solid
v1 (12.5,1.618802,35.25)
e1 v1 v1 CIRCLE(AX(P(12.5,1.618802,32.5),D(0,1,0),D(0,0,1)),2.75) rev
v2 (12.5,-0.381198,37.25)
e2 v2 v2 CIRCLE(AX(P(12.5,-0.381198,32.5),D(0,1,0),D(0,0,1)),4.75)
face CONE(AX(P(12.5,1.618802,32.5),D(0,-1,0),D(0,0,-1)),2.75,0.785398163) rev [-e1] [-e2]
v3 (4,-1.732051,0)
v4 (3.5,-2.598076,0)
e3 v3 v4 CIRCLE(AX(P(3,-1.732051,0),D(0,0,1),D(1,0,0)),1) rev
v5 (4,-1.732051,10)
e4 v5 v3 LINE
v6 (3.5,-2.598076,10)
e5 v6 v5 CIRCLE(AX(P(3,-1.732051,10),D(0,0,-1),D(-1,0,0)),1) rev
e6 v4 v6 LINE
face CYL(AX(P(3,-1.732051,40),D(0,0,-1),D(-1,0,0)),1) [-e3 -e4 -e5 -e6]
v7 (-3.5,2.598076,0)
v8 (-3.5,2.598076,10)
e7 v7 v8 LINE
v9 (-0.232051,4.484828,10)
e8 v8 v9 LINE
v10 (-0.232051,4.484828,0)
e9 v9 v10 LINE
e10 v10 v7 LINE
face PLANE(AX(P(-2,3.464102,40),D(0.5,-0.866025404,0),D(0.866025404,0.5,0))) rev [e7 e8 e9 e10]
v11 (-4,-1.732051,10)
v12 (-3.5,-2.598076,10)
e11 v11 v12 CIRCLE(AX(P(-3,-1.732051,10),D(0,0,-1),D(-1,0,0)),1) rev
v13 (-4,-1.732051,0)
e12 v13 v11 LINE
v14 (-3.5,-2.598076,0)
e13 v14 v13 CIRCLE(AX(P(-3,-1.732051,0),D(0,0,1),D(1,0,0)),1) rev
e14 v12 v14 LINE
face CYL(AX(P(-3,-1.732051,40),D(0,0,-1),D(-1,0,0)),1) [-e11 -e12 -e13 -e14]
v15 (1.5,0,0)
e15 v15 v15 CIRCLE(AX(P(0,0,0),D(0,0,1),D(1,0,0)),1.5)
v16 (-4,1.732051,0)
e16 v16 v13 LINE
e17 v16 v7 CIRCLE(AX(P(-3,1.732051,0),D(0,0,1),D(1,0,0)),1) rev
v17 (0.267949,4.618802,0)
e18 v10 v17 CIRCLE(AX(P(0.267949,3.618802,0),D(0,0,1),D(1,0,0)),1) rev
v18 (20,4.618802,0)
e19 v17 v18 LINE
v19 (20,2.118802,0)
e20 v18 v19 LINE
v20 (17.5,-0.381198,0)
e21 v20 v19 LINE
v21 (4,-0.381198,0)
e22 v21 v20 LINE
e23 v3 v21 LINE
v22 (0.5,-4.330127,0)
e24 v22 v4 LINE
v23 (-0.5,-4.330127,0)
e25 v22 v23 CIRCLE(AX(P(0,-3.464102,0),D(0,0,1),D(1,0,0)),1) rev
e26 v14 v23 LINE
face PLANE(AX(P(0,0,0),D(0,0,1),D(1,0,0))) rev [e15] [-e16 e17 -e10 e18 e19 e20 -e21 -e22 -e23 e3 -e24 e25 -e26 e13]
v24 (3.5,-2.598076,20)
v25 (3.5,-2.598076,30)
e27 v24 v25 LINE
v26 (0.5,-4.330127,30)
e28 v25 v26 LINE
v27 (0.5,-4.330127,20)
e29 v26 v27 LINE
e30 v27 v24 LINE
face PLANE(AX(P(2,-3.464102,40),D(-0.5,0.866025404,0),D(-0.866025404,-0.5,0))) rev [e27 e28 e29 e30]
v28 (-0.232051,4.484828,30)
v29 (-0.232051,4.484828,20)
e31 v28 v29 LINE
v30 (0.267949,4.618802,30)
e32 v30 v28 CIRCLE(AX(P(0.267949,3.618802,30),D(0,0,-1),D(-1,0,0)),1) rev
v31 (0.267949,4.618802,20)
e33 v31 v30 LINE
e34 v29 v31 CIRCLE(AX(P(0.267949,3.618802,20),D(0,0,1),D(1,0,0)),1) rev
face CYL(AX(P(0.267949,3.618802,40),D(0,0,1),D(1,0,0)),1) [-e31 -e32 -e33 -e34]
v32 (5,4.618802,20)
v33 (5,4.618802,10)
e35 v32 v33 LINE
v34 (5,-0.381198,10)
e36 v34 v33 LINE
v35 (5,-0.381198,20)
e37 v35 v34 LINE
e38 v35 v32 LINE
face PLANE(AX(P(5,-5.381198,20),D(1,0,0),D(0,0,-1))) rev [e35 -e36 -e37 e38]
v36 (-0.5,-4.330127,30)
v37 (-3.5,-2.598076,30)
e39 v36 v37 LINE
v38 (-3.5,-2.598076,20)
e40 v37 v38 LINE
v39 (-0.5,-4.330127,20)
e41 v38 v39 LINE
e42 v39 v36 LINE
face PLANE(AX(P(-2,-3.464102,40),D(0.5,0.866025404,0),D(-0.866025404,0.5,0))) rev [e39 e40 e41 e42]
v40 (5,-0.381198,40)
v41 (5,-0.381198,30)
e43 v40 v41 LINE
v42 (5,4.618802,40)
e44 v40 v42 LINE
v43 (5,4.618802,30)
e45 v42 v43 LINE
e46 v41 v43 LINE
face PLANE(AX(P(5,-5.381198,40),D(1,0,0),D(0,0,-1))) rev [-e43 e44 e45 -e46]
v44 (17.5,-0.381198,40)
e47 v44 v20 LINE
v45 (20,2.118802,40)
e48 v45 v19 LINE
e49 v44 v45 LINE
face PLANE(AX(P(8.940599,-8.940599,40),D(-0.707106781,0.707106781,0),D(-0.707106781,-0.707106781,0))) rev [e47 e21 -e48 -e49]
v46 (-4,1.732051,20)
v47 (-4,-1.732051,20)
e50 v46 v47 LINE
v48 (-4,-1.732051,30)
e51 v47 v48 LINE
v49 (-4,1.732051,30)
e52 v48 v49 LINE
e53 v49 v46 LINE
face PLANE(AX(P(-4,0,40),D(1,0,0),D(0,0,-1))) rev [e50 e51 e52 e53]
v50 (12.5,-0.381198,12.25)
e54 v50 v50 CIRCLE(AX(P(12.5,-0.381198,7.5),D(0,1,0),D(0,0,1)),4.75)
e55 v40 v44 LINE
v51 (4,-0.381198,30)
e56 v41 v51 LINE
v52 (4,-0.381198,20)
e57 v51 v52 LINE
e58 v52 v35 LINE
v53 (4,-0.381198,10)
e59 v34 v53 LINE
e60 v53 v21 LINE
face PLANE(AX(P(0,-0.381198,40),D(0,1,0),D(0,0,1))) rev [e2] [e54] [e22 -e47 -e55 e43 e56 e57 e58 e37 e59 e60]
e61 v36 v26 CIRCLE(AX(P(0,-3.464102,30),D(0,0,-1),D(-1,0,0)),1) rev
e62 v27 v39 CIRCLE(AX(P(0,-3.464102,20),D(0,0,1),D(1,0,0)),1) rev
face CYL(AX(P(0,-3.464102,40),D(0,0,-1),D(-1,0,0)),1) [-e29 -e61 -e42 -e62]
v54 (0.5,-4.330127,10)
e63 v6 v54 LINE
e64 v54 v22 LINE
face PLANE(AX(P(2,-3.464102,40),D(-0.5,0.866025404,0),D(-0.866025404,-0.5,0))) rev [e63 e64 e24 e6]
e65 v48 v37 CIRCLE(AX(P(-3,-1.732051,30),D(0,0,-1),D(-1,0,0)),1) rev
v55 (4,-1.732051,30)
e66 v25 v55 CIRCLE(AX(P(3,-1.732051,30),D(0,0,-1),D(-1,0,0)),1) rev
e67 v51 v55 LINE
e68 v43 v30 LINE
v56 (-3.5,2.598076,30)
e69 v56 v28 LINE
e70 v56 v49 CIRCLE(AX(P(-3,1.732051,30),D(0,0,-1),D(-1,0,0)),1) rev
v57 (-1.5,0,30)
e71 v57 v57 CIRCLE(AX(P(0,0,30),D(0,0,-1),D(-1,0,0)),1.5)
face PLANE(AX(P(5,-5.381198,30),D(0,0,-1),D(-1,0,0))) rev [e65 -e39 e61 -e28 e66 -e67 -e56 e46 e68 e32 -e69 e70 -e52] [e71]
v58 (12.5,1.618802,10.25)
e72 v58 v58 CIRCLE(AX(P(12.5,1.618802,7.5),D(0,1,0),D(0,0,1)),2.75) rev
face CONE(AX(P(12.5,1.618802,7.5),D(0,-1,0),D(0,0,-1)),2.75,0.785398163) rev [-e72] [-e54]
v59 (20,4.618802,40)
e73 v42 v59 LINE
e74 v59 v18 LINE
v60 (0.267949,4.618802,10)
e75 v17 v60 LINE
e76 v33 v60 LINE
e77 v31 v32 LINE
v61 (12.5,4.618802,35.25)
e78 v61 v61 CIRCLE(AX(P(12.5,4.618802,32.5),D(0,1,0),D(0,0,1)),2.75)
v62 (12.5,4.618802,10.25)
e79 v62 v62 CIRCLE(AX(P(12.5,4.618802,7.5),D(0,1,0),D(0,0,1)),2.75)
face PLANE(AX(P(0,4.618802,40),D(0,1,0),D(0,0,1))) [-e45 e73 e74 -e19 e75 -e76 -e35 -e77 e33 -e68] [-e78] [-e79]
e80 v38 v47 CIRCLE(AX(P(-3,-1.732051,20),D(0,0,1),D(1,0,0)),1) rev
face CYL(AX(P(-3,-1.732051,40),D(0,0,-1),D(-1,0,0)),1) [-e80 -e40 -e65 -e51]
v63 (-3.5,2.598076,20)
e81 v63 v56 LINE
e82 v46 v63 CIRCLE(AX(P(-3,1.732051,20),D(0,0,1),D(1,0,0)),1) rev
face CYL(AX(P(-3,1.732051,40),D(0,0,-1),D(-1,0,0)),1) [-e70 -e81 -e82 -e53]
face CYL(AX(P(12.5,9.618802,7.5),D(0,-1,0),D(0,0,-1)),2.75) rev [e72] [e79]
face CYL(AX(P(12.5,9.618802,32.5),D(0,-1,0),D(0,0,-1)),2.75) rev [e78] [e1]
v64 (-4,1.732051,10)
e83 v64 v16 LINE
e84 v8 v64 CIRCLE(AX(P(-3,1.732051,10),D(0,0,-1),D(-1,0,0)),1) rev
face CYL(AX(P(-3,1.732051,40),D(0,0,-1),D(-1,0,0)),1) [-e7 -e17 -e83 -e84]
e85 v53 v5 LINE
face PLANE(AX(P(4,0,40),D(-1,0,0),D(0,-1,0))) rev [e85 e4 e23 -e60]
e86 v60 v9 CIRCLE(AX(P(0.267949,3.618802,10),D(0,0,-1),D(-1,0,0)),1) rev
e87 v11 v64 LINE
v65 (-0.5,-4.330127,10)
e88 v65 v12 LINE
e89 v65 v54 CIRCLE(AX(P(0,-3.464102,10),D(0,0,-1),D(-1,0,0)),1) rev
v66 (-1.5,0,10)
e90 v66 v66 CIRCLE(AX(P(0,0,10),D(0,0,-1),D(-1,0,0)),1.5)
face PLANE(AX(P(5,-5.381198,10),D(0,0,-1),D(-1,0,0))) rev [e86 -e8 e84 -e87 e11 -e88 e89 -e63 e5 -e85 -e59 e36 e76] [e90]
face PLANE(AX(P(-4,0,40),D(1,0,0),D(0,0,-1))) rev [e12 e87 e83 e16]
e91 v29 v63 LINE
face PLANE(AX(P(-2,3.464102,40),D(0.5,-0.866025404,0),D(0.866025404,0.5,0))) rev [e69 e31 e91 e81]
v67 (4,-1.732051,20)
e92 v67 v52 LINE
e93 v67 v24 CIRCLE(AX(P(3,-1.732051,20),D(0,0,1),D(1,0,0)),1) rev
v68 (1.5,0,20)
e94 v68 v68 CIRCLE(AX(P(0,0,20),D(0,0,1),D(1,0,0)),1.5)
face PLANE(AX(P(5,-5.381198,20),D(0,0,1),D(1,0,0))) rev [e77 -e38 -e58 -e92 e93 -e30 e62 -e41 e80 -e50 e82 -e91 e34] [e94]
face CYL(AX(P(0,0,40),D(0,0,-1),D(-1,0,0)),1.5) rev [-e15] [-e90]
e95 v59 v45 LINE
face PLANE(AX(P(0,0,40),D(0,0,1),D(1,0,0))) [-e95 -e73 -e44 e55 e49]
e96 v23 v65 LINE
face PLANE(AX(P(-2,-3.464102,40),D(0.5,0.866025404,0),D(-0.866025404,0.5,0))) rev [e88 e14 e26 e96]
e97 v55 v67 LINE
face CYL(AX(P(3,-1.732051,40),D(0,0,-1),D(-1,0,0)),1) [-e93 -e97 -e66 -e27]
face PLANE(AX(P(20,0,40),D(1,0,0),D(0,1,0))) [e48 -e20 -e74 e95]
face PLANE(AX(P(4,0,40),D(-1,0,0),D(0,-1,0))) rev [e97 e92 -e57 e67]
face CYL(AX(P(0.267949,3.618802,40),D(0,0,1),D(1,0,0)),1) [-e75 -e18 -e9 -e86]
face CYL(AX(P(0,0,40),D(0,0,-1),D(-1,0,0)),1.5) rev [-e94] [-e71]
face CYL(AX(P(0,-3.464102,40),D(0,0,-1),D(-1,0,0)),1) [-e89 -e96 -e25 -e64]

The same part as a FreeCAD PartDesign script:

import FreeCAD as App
import Part
import Sketcher

V = App.Vector
Q = App.Units.Quantity


def edges_at(feature, points):
    """Names of the edges that pass closest to the given points."""
    edges = feature.Shape.Edges
    near = lambda p: min(range(len(edges)), key=lambda i: edges[i].distToShape(Part.Vertex(*p))[0])
    return sorted({f"Edge{near(p) + 1}" for p in points})

doc = App.newDocument("Part")
body = doc.addObject("PartDesign::Body", "Body")

# Sketch on XY plane
sketch1 = body.newObject("Sketcher::SketchObject", "Sketch")
sketch1.AttachmentSupport = (doc.getObject("XY_Plane"), [""])
sketch1.MapMode = "FlatFace"
sketch1.addGeometry([
    Part.LineSegment(V(4, -0.4, 0), V(17.5, -0.4, 0)),  # 0
    Part.LineSegment(V(17.5, -0.4, 0), V(20, 2.1, 0)),  # 1
    Part.LineSegment(V(20, 2.1, 0), V(20, 4.6, 0)),  # 2
    Part.LineSegment(V(20, 4.6, 0), V(0, 4.6, 0)),  # 3
    Part.LineSegment(V(0, 4.6, 0), V(-4, 2.3, 0)),  # 4
    Part.LineSegment(V(-4, 2.3, 0), V(-4, -2.3, 0)),  # 5
    Part.LineSegment(V(-4, -2.3, 0), V(0, -4.6, 0)),  # 6
    Part.LineSegment(V(0, -4.6, 0), V(4, -2.3, 0)),  # 7
    Part.LineSegment(V(4, -2.3, 0), V(4, -0.4, 0)),  # 8
    Part.Circle(V(0, 0, 0), V(0, 0, 1), 1.5),  # 9
], False)
sketch1.addConstraint([
    Sketcher.Constraint("Coincident", 0, 2, 1, 1),
    Sketcher.Constraint("Coincident", 1, 2, 2, 1),
    Sketcher.Constraint("Coincident", 2, 2, 3, 1),
    Sketcher.Constraint("Coincident", 3, 2, 4, 1),
    Sketcher.Constraint("Coincident", 4, 2, 5, 1),
    Sketcher.Constraint("Coincident", 5, 2, 6, 1),
    Sketcher.Constraint("Coincident", 6, 2, 7, 1),
    Sketcher.Constraint("Coincident", 7, 2, 8, 1),
    Sketcher.Constraint("Coincident", 8, 2, 0, 1),
    Sketcher.Constraint("Horizontal", 0),
    Sketcher.Constraint("Vertical", 2),
    Sketcher.Constraint("Horizontal", 3),
    Sketcher.Constraint("Vertical", 5),
    Sketcher.Constraint("Vertical", 8),
    Sketcher.Constraint("Coincident", 9, 3, -1, 1),
    Sketcher.Constraint("Symmetric", 3, 2, 6, 2, -1, 1),
    Sketcher.Constraint("Symmetric", 4, 2, 7, 2, -1, 1),
    Sketcher.Constraint("PointOnObject", 3, 2, -2),
    Sketcher.Constraint("Horizontal", 5, 2, 7, 2),
    Sketcher.Constraint("Diameter", 9, 3.0),
    Sketcher.Constraint("DistanceX", 3, 2, 3, 1, 20.0),
    Sketcher.Constraint("Angle", 1, Q("45 deg")),
    Sketcher.Constraint("Angle", 4, Q("-150 deg")),
    Sketcher.Constraint("DistanceX", 0, 1, 0, 2, 13.5),
    Sketcher.Constraint("DistanceY", 2, 1, 2, 2, 2.5),
    Sketcher.Constraint("DistanceX", 4, 2, -1, 1, 4.0),
    Sketcher.Constraint("DistanceY", -1, 1, 4, 2, 2.309401),
])
pad1 = body.newObject("PartDesign::Pad", "Pad")
pad1.Profile = sketch1
pad1.Length = 40

# Sketch on XZ plane
sketch2 = body.newObject("Sketcher::SketchObject", "Sketch001")
sketch2.AttachmentSupport = (doc.getObject("XZ_Plane"), [""])
sketch2.MapMode = "FlatFace"
sketch2.AttachmentOffset = App.Placement(V(0, 0, 0.381198), App.Rotation())
sketch2.addGeometry([
    Part.Circle(V(12.5, 32.5, 0), V(0, 0, 1), 2.8),
    Part.Circle(V(12.5, 7.5, 0), V(0, 0, 1), 2.8),
], False)
sketch2.addConstraint([
    Sketcher.Constraint("Equal", 0, 1),
    Sketcher.Constraint("Vertical", 0, 3, 1, 3),
    Sketcher.Constraint("Diameter", 0, 5.5),
    Sketcher.Constraint("DistanceY", 1, 3, 0, 3, 25.0),
    Sketcher.Constraint("DistanceX", -1, 1, 0, 3, 12.5),
    Sketcher.Constraint("DistanceY", -1, 1, 0, 3, 32.5),
])
pocket1 = body.newObject("PartDesign::Pocket", "Pocket")
pocket1.Profile = sketch2
pocket1.Length = 10
doc.recompute()

chamfer = body.newObject("PartDesign::Chamfer", "Chamfer")
chamfer.Base = (pocket1, edges_at(pocket1, [(9.75, -0.381, 32.5), (9.75, -0.381, 7.5)]))
chamfer.Size = 2

# Sketch on XZ plane
sketch3 = body.newObject("Sketcher::SketchObject", "Sketch002")
sketch3.AttachmentSupport = (doc.getObject("XZ_Plane"), [""])
sketch3.MapMode = "FlatFace"
sketch3.AttachmentOffset = App.Placement(V(0, 0, -4.618802), App.Rotation())
sketch3.addGeometry([
    Part.LineSegment(V(-8, 30, 0), V(-8, 40, 0)),  # 0
    Part.LineSegment(V(-8, 40, 0), V(5, 40, 0)),  # 1
    Part.LineSegment(V(5, 40, 0), V(5, 30, 0)),  # 2
    Part.LineSegment(V(5, 30, 0), V(-8, 30, 0)),  # 3
    Part.LineSegment(V(-8, 10, 0), V(-8, 20, 0)),  # 4
    Part.LineSegment(V(-8, 20, 0), V(5, 20, 0)),  # 5
    Part.LineSegment(V(5, 20, 0), V(5, 10, 0)),  # 6
    Part.LineSegment(V(5, 10, 0), V(-8, 10, 0)),  # 7
], False)
sketch3.addConstraint([
    Sketcher.Constraint("Coincident", 0, 2, 1, 1),
    Sketcher.Constraint("Coincident", 1, 2, 2, 1),
    Sketcher.Constraint("Coincident", 2, 2, 3, 1),
    Sketcher.Constraint("Coincident", 3, 2, 0, 1),
    Sketcher.Constraint("Coincident", 4, 2, 5, 1),
    Sketcher.Constraint("Coincident", 5, 2, 6, 1),
    Sketcher.Constraint("Coincident", 6, 2, 7, 1),
    Sketcher.Constraint("Coincident", 7, 2, 4, 1),
    Sketcher.Constraint("Vertical", 0),
    Sketcher.Constraint("Horizontal", 1),
    Sketcher.Constraint("Vertical", 2),
    Sketcher.Constraint("Horizontal", 3),
    Sketcher.Constraint("Vertical", 4),
    Sketcher.Constraint("Horizontal", 5),
    Sketcher.Constraint("Vertical", 6),
    Sketcher.Constraint("Horizontal", 7),
    Sketcher.Constraint("Vertical", 2, 2, 5, 2),
    Sketcher.Constraint("Equal", 2, 4),
    Sketcher.Constraint("DistanceY", 0, 1, 0, 2, 10.0),
    Sketcher.Constraint("DistanceY", -1, 1, 0, 2, 40.0),
    Sketcher.Constraint("DistanceX", -1, 1, 1, 2, 5.0),
    Sketcher.Constraint("DistanceY", -1, 1, 4, 2, 20.0),
    Sketcher.Constraint("DistanceX", 1, 1, 1, 2, 12.733636),
    Sketcher.Constraint("DistanceX", 5, 1, 5, 2, 13.399455),
])
pocket2 = body.newObject("PartDesign::Pocket", "Pocket001")
pocket2.Profile = sketch3
pocket2.Length = 10
pocket2.Reversed = True
doc.recompute()

fillet = body.newObject("PartDesign::Fillet", "Fillet")
fillet.Base = (pocket2, edges_at(pocket2, [
    (4, -2.309, 25),
    (4, -2.309, 5),
    (0, -4.619, 25),
    (0, -4.619, 5),
    (-4, -2.309, 25),
    (-4, -2.309, 5),
    (-4, 2.309, 25),
    (-4, 2.309, 5),
    (0, 4.619, 25),
    (0, 4.619, 5),
]))
fillet.Radius = 1

doc.recompute()
